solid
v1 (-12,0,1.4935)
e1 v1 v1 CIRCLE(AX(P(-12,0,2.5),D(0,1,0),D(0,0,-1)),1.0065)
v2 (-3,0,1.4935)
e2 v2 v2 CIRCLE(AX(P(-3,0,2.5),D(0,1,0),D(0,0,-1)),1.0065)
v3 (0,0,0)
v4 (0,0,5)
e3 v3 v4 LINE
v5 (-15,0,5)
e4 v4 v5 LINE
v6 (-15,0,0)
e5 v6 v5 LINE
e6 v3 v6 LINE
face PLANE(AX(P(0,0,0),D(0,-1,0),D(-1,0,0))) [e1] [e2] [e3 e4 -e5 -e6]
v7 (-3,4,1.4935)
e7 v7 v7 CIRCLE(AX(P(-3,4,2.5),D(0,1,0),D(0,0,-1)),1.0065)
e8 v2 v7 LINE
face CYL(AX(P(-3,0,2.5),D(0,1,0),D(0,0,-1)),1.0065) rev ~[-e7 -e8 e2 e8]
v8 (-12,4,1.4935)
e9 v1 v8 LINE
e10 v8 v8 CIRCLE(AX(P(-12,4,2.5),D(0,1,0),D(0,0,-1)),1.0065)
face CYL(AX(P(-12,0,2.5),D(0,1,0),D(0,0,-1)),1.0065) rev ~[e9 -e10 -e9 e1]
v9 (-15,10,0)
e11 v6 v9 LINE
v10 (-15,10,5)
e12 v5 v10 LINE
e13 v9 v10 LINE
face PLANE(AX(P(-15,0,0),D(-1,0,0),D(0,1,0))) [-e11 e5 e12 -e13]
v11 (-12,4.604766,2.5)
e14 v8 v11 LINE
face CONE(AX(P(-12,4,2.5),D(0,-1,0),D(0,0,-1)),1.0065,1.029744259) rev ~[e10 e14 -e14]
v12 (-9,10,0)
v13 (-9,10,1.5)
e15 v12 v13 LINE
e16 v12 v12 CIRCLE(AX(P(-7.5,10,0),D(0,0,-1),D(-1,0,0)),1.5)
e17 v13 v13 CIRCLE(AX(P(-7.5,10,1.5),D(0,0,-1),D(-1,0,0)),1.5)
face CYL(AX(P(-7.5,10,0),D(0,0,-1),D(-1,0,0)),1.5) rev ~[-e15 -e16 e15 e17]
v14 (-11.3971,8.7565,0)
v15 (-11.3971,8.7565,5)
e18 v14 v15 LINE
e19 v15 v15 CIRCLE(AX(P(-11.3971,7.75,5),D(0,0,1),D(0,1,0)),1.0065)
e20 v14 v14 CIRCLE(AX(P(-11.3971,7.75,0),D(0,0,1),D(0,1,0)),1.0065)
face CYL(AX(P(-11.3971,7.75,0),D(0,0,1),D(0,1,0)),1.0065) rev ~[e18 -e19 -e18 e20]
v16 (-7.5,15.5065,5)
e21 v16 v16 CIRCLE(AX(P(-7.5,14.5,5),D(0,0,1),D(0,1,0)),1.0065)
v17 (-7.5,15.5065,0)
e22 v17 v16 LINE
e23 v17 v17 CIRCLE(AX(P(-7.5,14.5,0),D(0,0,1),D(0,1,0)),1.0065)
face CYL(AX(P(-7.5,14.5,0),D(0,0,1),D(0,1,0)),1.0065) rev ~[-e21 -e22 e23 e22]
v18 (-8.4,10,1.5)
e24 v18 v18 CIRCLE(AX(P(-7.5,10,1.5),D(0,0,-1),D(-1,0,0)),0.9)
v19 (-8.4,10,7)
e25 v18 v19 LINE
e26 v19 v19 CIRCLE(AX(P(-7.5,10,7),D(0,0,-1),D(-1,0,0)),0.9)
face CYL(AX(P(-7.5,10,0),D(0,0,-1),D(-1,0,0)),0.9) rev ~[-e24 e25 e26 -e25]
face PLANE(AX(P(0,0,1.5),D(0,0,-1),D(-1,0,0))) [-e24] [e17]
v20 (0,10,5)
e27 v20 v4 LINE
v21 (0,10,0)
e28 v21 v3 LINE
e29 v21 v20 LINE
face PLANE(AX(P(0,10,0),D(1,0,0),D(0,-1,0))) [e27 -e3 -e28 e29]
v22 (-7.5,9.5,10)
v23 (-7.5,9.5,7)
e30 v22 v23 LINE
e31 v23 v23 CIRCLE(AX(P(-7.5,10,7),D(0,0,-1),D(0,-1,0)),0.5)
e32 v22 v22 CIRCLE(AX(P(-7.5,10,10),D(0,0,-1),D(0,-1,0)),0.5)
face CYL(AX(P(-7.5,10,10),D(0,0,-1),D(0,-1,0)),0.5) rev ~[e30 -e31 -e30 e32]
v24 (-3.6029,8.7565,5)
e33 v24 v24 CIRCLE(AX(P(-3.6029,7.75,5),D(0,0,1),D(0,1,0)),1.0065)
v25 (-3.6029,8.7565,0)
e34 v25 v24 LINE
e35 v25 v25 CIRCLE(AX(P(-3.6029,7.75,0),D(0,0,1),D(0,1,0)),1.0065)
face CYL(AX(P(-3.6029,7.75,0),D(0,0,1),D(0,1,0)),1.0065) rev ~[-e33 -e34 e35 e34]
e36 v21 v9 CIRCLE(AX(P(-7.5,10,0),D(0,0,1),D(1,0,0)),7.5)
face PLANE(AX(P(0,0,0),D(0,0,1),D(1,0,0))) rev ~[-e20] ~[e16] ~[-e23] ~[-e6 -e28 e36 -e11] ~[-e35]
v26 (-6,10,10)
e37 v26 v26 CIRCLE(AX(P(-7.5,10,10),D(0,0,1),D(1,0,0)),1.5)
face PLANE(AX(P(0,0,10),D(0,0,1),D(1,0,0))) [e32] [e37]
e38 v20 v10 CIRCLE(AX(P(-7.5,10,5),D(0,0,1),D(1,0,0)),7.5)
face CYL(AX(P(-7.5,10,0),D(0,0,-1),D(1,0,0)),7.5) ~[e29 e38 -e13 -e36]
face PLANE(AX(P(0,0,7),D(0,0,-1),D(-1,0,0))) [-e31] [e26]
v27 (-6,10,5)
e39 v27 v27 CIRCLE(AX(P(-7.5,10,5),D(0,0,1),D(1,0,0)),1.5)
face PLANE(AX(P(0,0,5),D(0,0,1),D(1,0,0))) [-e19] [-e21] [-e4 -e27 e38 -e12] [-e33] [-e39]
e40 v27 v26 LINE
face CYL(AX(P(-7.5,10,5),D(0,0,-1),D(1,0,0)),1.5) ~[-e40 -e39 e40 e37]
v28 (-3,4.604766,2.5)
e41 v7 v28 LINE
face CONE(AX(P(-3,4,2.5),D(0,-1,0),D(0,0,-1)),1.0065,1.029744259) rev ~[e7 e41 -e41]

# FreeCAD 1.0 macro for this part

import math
import FreeCAD as App
import Part
import Sketcher

doc = App.newDocument("Part")
body = doc.addObject("PartDesign::Body", "Body")

# Sketch on XY plane
sketch1 = body.newObject("Sketcher::SketchObject", "Sketch")
sketch1.AttachmentSupport = (doc.getObject("XY_Plane"), [""])
sketch1.MapMode = "FlatFace"
sketch1.addGeometry([
    Part.LineSegment(App.Vector(-15, 0, 0), App.Vector(0, 0, 0)),
    Part.LineSegment(App.Vector(0, 0, 0), App.Vector(0, 10, 0)),
    Part.ArcOfCircle(Part.Circle(App.Vector(-8, 10, 0), App.Vector(0, 0, 1), 8), math.radians(0), math.radians(180)),
    Part.LineSegment(App.Vector(-15, 10, 0), App.Vector(-15, 0, 0)),
], False)
sketch1.addConstraint([
    Sketcher.Constraint("Coincident", 0, 2, 1, 1),
    Sketcher.Constraint("Tangent", 1, 2, 2, 1),
    Sketcher.Constraint("Tangent", 2, 2, 3, 1),
    Sketcher.Constraint("Coincident", 3, 2, 0, 1),
    Sketcher.Constraint("Horizontal", 0),
    Sketcher.Constraint("Vertical", 1),
    Sketcher.Constraint("Vertical", 3),
    Sketcher.Constraint("Coincident", 0, 2, -1, 1),
    Sketcher.Constraint("Radius", 2, 7.5),
    Sketcher.Constraint("DistanceY", 1, 1, 1, 2, 10.0),
])
pad1 = body.newObject("PartDesign::Pad", "Pad")
pad1.Profile = sketch1
pad1.Length = 5

# Sketch on XY plane
sketch2 = body.newObject("Sketcher::SketchObject", "Sketch001")
sketch2.AttachmentSupport = (doc.getObject("XY_Plane"), [""])
sketch2.MapMode = "FlatFace"
sketch2.AttachmentOffset = App.Placement(App.Vector(0, 0, 5), App.Rotation())
sketch2.addGeometry(Part.Circle(App.Vector(-7.5, 10, 0), App.Vector(0, 0, 1), 1.5), False)
sketch2.addConstraint([
    Sketcher.Constraint("Diameter", 0, 3.0),
    Sketcher.Constraint("DistanceY", -1, 1, 0, 3, 10.0),
    Sketcher.Constraint("DistanceX", 0, 3, -1, 1, 7.5),
])
pad2 = body.newObject("PartDesign::Pad", "Pad001")
pad2.Profile = sketch2
pad2.Length = 5

# Sketch on XY plane
sketch3 = body.newObject("Sketcher::SketchObject", "Sketch002")
sketch3.AttachmentSupport = (doc.getObject("XY_Plane"), [""])
sketch3.MapMode = "FlatFace"
sketch3.AttachmentOffset = App.Placement(App.Vector(0, 0, 10), App.Rotation())
sketch3.addGeometry(Part.Circle(App.Vector(-7.5, 10, 0), App.Vector(0, 0, 1), 0.5), False)
sketch3.addConstraint([
    Sketcher.Constraint("Diameter", 0, 1.0),
    Sketcher.Constraint("DistanceY", -1, 1, 0, 3, 10.0),
    Sketcher.Constraint("DistanceX", 0, 3, -1, 1, 7.5),
])
doc.recompute()
hole = body.newObject("PartDesign::Hole", "Hole")
hole.Profile = sketch3
hole.ThreadType = "None"
hole.Diameter = 1
hole.DepthType = "ThroughAll"

# Sketch on XY plane
sketch4 = body.newObject("Sketcher::SketchObject", "Sketch003")
sketch4.AttachmentSupport = (doc.getObject("XY_Plane"), [""])
sketch4.MapMode = "FlatFace"
sketch4.addGeometry(Part.Circle(App.Vector(-7.5, 10, 0), App.Vector(0, 0, 1), 0.9), False)
sketch4.addConstraint([
    Sketcher.Constraint("Diameter", 0, 1.8),
    Sketcher.Constraint("DistanceY", -1, 1, 0, 3, 10.0),
    Sketcher.Constraint("DistanceX", 0, 3, -1, 1, 7.5),
])
pocket1 = body.newObject("PartDesign::Pocket", "Pocket")
pocket1.Profile = sketch4
pocket1.Length = 7
pocket1.Reversed = True

# Sketch on XY plane
sketch5 = body.newObject("Sketcher::SketchObject", "Sketch004")
sketch5.AttachmentSupport = (doc.getObject("XY_Plane"), [""])
sketch5.MapMode = "FlatFace"
sketch5.addGeometry([
    Part.Circle(App.Vector(-7.5, 10, 0), App.Vector(0, 0, 1), 1.5),
    Part.Circle(App.Vector(-7.5, 10, 0), App.Vector(0, 0, 1), 0.9),
], False)
sketch5.addConstraint([
    Sketcher.Constraint("Coincident", 1, 3, 0, 3),
    Sketcher.Constraint("Diameter", 0, 3.0),
    Sketcher.Constraint("Diameter", 1, 1.8),
    Sketcher.Constraint("DistanceY", -1, 1, 0, 3, 10.0),
    Sketcher.Constraint("DistanceX", 0, 3, -1, 1, 7.5),
])
pocket2 = body.newObject("PartDesign::Pocket", "Pocket001")
pocket2.Profile = sketch5
pocket2.Length = 1.5
pocket2.Reversed = True

# Sketch on XZ plane
sketch6 = body.newObject("Sketcher::SketchObject", "Sketch005")
sketch6.AttachmentSupport = (doc.getObject("XZ_Plane"), [""])
sketch6.MapMode = "FlatFace"
sketch6.addGeometry([
    Part.Circle(App.Vector(-3, 2.5, 0), App.Vector(0, 0, 1), 1),
    Part.Circle(App.Vector(-12, 2.5, 0), App.Vector(0, 0, 1), 1),
], False)
sketch6.addConstraint([
    Sketcher.Constraint("Equal", 0, 1),
    Sketcher.Constraint("Horizontal", 0, 3, 1, 3),
    Sketcher.Constraint("Diameter", 0, 2.013),
    Sketcher.Constraint("DistanceX", 0, 3, -1, 1, 3.0),
    Sketcher.Constraint("DistanceX", 1, 3, -1, 1, 12.0),
    Sketcher.Constraint("DistanceY", -1, 1, 0, 3, 2.5),
])
doc.recompute()
hole2 = body.newObject("PartDesign::Hole", "Hole001")
hole2.Profile = sketch6
hole2.ThreadType = "None"
hole2.Diameter = 2.013
hole2.DepthType = "Dimension"
hole2.Depth = 4
hole2.DrillPoint = "Angled"
hole2.DrillPointAngle = 118

# Sketch on XY plane
sketch7 = body.newObject("Sketcher::SketchObject", "Sketch006")
sketch7.AttachmentSupport = (doc.getObject("XY_Plane"), [""])
sketch7.MapMode = "FlatFace"
sketch7.addGeometry([
    Part.Circle(App.Vector(-7.5, 14.5, 0), App.Vector(0, 0, 1), 1),
    Part.Circle(App.Vector(-11.4, 7.8, 0), App.Vector(0, 0, 1), 1),
    Part.Circle(App.Vector(-3.6, 7.8, 0), App.Vector(0, 0, 1), 1),
], False)
sketch7.addConstraint([
    Sketcher.Constraint("Equal", 0, 1),
    Sketcher.Constraint("Equal", 1, 2),
    Sketcher.Constraint("Horizontal", 1, 3, 2, 3),
    Sketcher.Constraint("Diameter", 0, 2.013),
    Sketcher.Constraint("DistanceX", 0, 3, -1, 1, 7.5),
    Sketcher.Constraint("DistanceY", -1, 1, 0, 3, 14.5),
    Sketcher.Constraint("DistanceY", -1, 1, 1, 3, 7.75),
    Sketcher.Constraint("DistanceX", 1, 3, -1, 1, 11.397),
    Sketcher.Constraint("DistanceX", 2, 3, -1, 1, 3.603),
])
doc.recompute()
hole3 = body.newObject("PartDesign::Hole", "Hole002")
hole3.Profile = sketch7
hole3.ThreadType = "None"
hole3.Diameter = 2.013
hole3.DepthType = "ThroughAll"
hole3.Reversed = True

doc.recompute()
